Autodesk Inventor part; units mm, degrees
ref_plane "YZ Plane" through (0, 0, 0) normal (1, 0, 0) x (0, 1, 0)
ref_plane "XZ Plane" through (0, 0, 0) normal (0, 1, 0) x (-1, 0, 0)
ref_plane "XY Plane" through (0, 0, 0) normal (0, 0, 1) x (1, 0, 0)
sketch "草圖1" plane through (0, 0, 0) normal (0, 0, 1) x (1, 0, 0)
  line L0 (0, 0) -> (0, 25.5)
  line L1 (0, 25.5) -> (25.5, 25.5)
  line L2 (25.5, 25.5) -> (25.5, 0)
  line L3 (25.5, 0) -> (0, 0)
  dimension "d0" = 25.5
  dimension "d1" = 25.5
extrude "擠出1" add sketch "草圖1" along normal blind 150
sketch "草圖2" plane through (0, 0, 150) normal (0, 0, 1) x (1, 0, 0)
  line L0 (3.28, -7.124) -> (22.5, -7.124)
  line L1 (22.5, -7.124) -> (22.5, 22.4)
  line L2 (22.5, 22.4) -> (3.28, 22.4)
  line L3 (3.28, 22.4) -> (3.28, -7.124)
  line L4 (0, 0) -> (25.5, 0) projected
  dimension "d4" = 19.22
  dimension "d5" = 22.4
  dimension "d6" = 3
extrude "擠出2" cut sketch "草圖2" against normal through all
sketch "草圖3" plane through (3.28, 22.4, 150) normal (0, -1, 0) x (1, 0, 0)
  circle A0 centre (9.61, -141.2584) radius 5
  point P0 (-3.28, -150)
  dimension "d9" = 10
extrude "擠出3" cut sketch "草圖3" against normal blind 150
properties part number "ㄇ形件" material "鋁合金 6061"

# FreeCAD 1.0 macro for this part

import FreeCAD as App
import Part
import Sketcher

V = App.Vector


def add_polygon(sketch, points):
    """Adds a closed chain of lines whose ends are joined by coincident constraints."""
    first, n = sketch.GeometryCount, len(points)
    for a, b in zip(points, points[1:] + points[:1]):
        sketch.addGeometry(Part.LineSegment(App.Vector(*a, 0), App.Vector(*b, 0)), False)
    for i in range(n):
        sketch.addConstraint(Sketcher.Constraint("Coincident", first + i, 2, first + (i + 1) % n, 1))

doc = App.newDocument("Part")
body = doc.addObject("PartDesign::Body", "Body")

sketch1 = body.newObject("Sketcher::SketchObject", "Sketch")
sketch1.AttachmentSupport = (doc.getObject("XY_Plane"), [""])
sketch1.MapMode = "FlatFace"
add_polygon(sketch1, [(0, 26), (0, 0), (26, 0), (26, 26)])
sketch1.addConstraint([
    Sketcher.Constraint("Vertical", 0),
    Sketcher.Constraint("Horizontal", 1),
    Sketcher.Constraint("Vertical", 2),
    Sketcher.Constraint("Horizontal", 3),
    Sketcher.Constraint("Coincident", 0, 2, -1, 1),
    Sketcher.Constraint("Equal", 3, 0),
    Sketcher.Constraint("DistanceX", 1, 1, 1, 2, 25.5),
])
pad1 = body.newObject("PartDesign::Pad", "Pad")
pad1.Profile = sketch1
pad1.Length = 150

sketch2 = body.newObject("Sketcher::SketchObject", "Sketch001")
sketch2.AttachmentSupport = (doc.getObject("XY_Plane"), [""])
sketch2.MapMode = "FlatFace"
sketch2.AttachmentOffset = App.Placement(V(0, 0, 150), App.Rotation())
add_polygon(sketch2, [(3, -7), (22, -7), (22, 22), (3, 22)])
sketch2.addConstraint([
    Sketcher.Constraint("Horizontal", 0),
    Sketcher.Constraint("Vertical", 1),
    Sketcher.Constraint("Horizontal", 2),
    Sketcher.Constraint("Vertical", 3),
    Sketcher.Constraint("DistanceX", 0, 1, 0, 2, 19.22),
    Sketcher.Constraint("DistanceY", -1, 1, 1, 2, 22.4),
    Sketcher.Constraint("DistanceX", -1, 1, 0, 2, 22.5),
    Sketcher.Constraint("DistanceY", 1, 1, 1, 2, 29.524),
])
pocket1 = body.newObject("PartDesign::Pocket", "Pocket")
pocket1.Profile = sketch2
pocket1.Type = "ThroughAll"

sketch3 = body.newObject("Sketcher::SketchObject", "Sketch002")
sketch3.AttachmentSupport = (doc.getObject("XZ_Plane"), [""])
sketch3.MapMode = "FlatFace"
sketch3.AttachmentOffset = App.Placement(V(0, 0, -22.4), App.Rotation())
sketch3.addGeometry(Part.Circle(V(13, 9, 0), V(0, 0, 1), 5), False)
sketch3.addConstraint([
    Sketcher.Constraint("Diameter", 0, 10.0),
    Sketcher.Constraint("DistanceX", -1, 1, 0, 3, 12.89),
    Sketcher.Constraint("DistanceY", -1, 1, 0, 3, 8.7416),
])
pocket2 = body.newObject("PartDesign::Pocket", "Pocket001")
pocket2.Profile = sketch3
pocket2.Length = 150

doc.recompute()
